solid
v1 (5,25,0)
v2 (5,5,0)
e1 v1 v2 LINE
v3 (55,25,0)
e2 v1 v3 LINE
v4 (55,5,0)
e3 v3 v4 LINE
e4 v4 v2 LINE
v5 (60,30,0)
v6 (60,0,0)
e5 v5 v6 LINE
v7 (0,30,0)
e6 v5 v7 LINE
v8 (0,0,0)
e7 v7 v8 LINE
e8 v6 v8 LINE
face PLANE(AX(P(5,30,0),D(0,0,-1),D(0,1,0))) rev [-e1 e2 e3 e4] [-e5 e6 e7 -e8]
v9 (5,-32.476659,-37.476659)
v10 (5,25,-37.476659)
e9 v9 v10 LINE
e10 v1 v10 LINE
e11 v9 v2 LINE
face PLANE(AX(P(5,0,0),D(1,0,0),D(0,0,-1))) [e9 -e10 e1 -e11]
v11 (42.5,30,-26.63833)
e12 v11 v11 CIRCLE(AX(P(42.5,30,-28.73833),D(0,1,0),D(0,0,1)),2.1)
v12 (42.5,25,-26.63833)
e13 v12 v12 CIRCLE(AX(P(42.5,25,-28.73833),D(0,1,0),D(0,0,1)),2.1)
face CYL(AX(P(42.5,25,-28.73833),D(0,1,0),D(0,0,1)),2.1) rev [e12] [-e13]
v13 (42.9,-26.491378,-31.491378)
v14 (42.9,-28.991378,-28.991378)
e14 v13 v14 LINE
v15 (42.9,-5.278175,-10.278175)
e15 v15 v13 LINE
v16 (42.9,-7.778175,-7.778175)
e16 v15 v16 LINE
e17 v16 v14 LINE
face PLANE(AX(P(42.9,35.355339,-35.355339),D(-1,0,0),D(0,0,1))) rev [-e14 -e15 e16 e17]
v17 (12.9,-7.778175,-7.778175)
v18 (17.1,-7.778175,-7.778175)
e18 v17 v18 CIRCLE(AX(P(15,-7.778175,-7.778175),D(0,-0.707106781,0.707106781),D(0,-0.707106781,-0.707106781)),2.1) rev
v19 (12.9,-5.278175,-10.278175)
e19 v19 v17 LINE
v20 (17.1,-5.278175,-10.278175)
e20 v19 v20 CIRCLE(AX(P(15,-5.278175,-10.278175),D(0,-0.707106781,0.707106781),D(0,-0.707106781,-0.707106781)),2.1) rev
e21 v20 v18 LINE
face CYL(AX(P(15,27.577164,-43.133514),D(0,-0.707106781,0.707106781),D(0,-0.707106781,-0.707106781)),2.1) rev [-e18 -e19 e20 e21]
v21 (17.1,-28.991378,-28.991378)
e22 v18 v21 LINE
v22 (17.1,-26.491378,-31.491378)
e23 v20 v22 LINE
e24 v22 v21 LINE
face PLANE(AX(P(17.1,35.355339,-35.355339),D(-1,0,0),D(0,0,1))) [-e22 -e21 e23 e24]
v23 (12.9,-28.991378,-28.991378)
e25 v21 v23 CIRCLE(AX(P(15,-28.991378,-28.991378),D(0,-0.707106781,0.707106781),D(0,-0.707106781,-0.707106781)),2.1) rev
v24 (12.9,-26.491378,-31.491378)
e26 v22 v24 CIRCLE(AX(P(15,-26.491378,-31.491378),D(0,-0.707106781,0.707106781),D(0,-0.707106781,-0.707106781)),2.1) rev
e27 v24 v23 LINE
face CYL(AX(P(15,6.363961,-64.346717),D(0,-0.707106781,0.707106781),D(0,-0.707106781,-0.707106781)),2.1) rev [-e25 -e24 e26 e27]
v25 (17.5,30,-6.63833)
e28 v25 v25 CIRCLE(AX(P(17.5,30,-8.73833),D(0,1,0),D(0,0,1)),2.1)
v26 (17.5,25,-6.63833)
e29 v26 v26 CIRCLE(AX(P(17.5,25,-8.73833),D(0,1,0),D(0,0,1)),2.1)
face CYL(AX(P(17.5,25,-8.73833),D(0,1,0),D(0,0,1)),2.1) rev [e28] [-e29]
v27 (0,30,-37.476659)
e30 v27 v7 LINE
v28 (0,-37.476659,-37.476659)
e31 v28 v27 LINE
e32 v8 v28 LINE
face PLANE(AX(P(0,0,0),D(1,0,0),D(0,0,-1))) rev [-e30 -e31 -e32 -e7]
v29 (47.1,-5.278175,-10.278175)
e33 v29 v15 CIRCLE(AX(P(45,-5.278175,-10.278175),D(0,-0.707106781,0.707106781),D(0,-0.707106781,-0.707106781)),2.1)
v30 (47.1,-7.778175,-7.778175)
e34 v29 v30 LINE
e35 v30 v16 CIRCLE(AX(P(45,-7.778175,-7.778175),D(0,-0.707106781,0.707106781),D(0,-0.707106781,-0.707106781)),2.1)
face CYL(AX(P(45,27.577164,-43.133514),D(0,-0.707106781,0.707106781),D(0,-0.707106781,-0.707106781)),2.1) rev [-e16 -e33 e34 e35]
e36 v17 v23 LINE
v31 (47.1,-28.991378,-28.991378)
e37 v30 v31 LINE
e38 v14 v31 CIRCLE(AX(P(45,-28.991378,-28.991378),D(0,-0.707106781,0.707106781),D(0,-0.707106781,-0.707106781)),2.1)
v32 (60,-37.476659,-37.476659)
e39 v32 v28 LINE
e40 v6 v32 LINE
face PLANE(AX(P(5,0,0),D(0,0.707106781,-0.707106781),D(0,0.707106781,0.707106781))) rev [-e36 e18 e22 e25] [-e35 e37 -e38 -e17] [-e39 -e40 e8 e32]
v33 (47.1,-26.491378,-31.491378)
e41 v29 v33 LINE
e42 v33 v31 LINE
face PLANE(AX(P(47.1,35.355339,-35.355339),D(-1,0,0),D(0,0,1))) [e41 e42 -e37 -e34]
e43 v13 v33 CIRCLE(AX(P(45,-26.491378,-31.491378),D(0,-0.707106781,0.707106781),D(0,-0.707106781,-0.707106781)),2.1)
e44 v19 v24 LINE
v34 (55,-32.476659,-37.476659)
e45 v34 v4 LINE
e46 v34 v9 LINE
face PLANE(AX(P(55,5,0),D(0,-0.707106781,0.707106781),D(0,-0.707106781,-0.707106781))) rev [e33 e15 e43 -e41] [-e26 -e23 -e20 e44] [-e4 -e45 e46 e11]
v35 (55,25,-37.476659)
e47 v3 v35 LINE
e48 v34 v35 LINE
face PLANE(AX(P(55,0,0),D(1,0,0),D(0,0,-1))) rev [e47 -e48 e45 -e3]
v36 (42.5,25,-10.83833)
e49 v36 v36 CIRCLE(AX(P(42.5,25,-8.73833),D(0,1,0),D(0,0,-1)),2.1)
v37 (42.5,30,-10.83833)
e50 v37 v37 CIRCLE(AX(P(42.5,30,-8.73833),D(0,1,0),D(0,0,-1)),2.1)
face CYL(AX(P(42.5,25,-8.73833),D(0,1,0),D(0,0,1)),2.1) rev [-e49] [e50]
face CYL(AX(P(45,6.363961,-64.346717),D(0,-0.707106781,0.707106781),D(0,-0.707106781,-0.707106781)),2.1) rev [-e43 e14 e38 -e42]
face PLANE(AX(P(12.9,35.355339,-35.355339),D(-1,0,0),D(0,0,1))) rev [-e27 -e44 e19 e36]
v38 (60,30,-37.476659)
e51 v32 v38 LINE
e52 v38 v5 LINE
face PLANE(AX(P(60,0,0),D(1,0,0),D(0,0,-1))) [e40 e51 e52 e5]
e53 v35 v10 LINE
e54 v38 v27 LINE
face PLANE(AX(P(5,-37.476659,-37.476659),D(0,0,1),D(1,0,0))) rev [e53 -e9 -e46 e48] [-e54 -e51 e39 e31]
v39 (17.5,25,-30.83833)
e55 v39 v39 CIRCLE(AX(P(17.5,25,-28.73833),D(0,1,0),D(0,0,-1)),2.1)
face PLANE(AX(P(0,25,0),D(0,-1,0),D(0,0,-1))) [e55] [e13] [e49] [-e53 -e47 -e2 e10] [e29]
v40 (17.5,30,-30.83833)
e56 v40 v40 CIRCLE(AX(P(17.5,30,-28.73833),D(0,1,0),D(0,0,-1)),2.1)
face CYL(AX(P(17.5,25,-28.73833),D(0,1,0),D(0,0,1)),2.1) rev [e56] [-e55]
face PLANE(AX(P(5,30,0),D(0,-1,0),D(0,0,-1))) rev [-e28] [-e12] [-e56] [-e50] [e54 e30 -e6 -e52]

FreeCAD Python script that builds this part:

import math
import FreeCAD as App
import Part
import Sketcher
from FreeCAD import Vector
Q = App.Units.Quantity


def add_polygon(sketch, points):
    """Adds a closed chain of lines whose ends are joined by coincident constraints."""
    first, n = sketch.GeometryCount, len(points)
    for a, b in zip(points, points[1:] + points[:1]):
        sketch.addGeometry(Part.LineSegment(App.Vector(*a, 0), App.Vector(*b, 0)), False)
    for i in range(n):
        sketch.addConstraint(Sketcher.Constraint("Coincident", first + i, 2, first + (i + 1) % n, 1))

doc = App.newDocument("Part")
body = doc.addObject("PartDesign::Body", "Body")

# Sketch on YZ plane
sketch1 = body.newObject("Sketcher::SketchObject", "Sketch")
sketch1.AttachmentSupport = (doc.getObject("YZ_Plane"), [""])
sketch1.MapMode = "FlatFace"
add_polygon(sketch1, [(30, 0), (0, 0), (-37, -37), (30, -37)])  # lines 0-3
sketch1.addConstraint(Sketcher.Constraint("Horizontal", 0))
sketch1.addConstraint(Sketcher.Constraint("Horizontal", 2))
sketch1.addConstraint(Sketcher.Constraint("Vertical", 3))
sketch1.addConstraint(Sketcher.Constraint("Coincident", 0, 2, -1, 1))
sketch1.addConstraint(Sketcher.Constraint("DistanceX", 0, 2, 0, 1, Q("30 mm")))
sketch1.addConstraint(Sketcher.Constraint("Angle", 1, Q("-135 deg")))
sketch1.addConstraint(Sketcher.Constraint("Distance", 1, Q("53 mm")))
pad1 = body.newObject("PartDesign::Pad", "Pad")
pad1.Profile = sketch1
pad1.Length = 5

# Sketch on YZ plane
sketch2 = body.newObject("Sketcher::SketchObject", "Sketch001")
sketch2.AttachmentSupport = (doc.getObject("YZ_Plane"), [""])
sketch2.MapMode = "FlatFace"
sketch2.AttachmentOffset = App.Placement(Vector(0, 0, 5), App.Rotation())
add_polygon(sketch2, [(5, 0), (0, 0), (-37, -37), (-32, -37)])  # lines 0-3
sketch2.addConstraint(Sketcher.Constraint("Horizontal", 0))
sketch2.addConstraint(Sketcher.Constraint("Horizontal", 2))
sketch2.addConstraint(Sketcher.Constraint("Coincident", 0, 2, -1, 1))
sketch2.addConstraint(Sketcher.Constraint("Parallel", 1, 3))
sketch2.addConstraint(Sketcher.Constraint("DistanceX", 0, 2, 0, 1, Q("5 mm")))
sketch2.addConstraint(Sketcher.Constraint("Angle", 1, Q("-135 deg")))
sketch2.addConstraint(Sketcher.Constraint("Distance", 1, Q("53 mm")))
pad2 = body.newObject("PartDesign::Pad", "Pad001")
pad2.Profile = sketch2
pad2.Length = 50

# Sketch on an angled plane
sketch3 = body.newObject("Sketcher::SketchObject", "Sketch002")
sketch3.Placement = App.Placement(Vector(0, 0, 0), App.Rotation(Vector(1, 0, 0), Vector(0, 0.707106781, 0.707106781), Vector(0, -0.707106781, 0.707106781), "ZXY"))
sketch3.addGeometry(Part.ArcOfCircle(Part.Circle(Vector(15, -41, 0), Vector(0, 0, 1), 2.1), math.radians(180), math.radians(360)), False)
sketch3.addGeometry(Part.LineSegment(Vector(17.1, -41, 0), Vector(17.1, -11, 0)), False)
sketch3.addGeometry(Part.ArcOfCircle(Part.Circle(Vector(15, -11, 0), Vector(0, 0, 1), 2.1), math.radians(0), math.radians(180)), False)
sketch3.addGeometry(Part.LineSegment(Vector(12.9, -11, 0), Vector(12.9, -41, 0)), False)
sketch3.addGeometry(Part.LineSegment(Vector(42.9, -11, 0), Vector(42.9, -41, 0)), False)
sketch3.addGeometry(Part.ArcOfCircle(Part.Circle(Vector(45, -41, 0), Vector(0, 0, 1), 2.1), math.radians(180), math.radians(360)), False)
sketch3.addGeometry(Part.LineSegment(Vector(47.1, -41, 0), Vector(47.1, -11, 0)), False)
sketch3.addGeometry(Part.ArcOfCircle(Part.Circle(Vector(45, -11, 0), Vector(0, 0, 1), 2.1), math.radians(0), math.radians(180)), False)
sketch3.addConstraint(Sketcher.Constraint("Tangent", 0, 2, 1, 1))
sketch3.addConstraint(Sketcher.Constraint("Tangent", 1, 2, 2, 1))
sketch3.addConstraint(Sketcher.Constraint("Tangent", 2, 2, 3, 1))
sketch3.addConstraint(Sketcher.Constraint("Tangent", 3, 2, 0, 1))
sketch3.addConstraint(Sketcher.Constraint("Tangent", 4, 2, 5, 1))
sketch3.addConstraint(Sketcher.Constraint("Tangent", 5, 2, 6, 1))
sketch3.addConstraint(Sketcher.Constraint("Tangent", 6, 2, 7, 1))
sketch3.addConstraint(Sketcher.Constraint("Tangent", 7, 2, 4, 1))
sketch3.addConstraint(Sketcher.Constraint("Vertical", 1))
sketch3.addConstraint(Sketcher.Constraint("Vertical", 3))
sketch3.addConstraint(Sketcher.Constraint("Vertical", 4))
sketch3.addConstraint(Sketcher.Constraint("Vertical", 6))
sketch3.addConstraint(Sketcher.Constraint("Equal", 2, 5))
sketch3.addConstraint(Sketcher.Constraint("Horizontal", 0, 3, 5, 3))
sketch3.addConstraint(Sketcher.Constraint("Horizontal", 2, 3, 7, 3))
sketch3.addConstraint(Sketcher.Constraint("Radius", 0, Q("2.1 mm")))
sketch3.addConstraint(Sketcher.Constraint("DistanceY", 1, 1, 1, 2, Q("30 mm")))
sketch3.addConstraint(Sketcher.Constraint("DistanceX", -1, 1, 0, 3, Q("15 mm")))
sketch3.addConstraint(Sketcher.Constraint("DistanceY", 0, 3, -1, 1, Q("41 mm")))
sketch3.addConstraint(Sketcher.Constraint("DistanceX", -1, 1, 5, 3, Q("45 mm")))
pocket1 = body.newObject("PartDesign::Pocket", "Pocket")
pocket1.Profile = sketch3
pocket1.Length = 50

# Sketch on YZ plane
sketch4 = body.newObject("Sketcher::SketchObject", "Sketch003")
sketch4.AttachmentSupport = (doc.getObject("YZ_Plane"), [""])
sketch4.MapMode = "FlatFace"
sketch4.AttachmentOffset = App.Placement(Vector(0, 0, 55), App.Rotation())
add_polygon(sketch4, [(30, 0), (0, 0), (-37, -37), (30, -37)])  # lines 0-3
sketch4.addConstraint(Sketcher.Constraint("Horizontal", 0))
sketch4.addConstraint(Sketcher.Constraint("Horizontal", 2))
sketch4.addConstraint(Sketcher.Constraint("Vertical", 3))
sketch4.addConstraint(Sketcher.Constraint("Coincident", 0, 2, -1, 1))
sketch4.addConstraint(Sketcher.Constraint("DistanceX", 0, 2, 0, 1, Q("30 mm")))
sketch4.addConstraint(Sketcher.Constraint("Angle", 1, Q("-135 deg")))
sketch4.addConstraint(Sketcher.Constraint("Distance", 1, Q("53 mm")))
pad3 = body.newObject("PartDesign::Pad", "Pad002")
pad3.Profile = sketch4
pad3.Length = 5

# Sketch on XZ plane
sketch5 = body.newObject("Sketcher::SketchObject", "Sketch004")
sketch5.AttachmentSupport = (doc.getObject("XZ_Plane"), [""])
sketch5.MapMode = "FlatFace"
sketch5.AttachmentOffset = App.Placement(Vector(0, 0, -30), App.Rotation())
add_polygon(sketch5, [(0, -37), (0, 0), (60, 0), (60, -37)])  # lines 0-3
sketch5.addConstraint(Sketcher.Constraint("Vertical", 0))
sketch5.addConstraint(Sketcher.Constraint("Horizontal", 1))
sketch5.addConstraint(Sketcher.Constraint("Vertical", 2))
sketch5.addConstraint(Sketcher.Constraint("Horizontal", 3))
sketch5.addConstraint(Sketcher.Constraint("Coincident", 0, 2, -1, 1))
sketch5.addConstraint(Sketcher.Constraint("DistanceX", 1, 1, 1, 2, Q("60 mm")))
sketch5.addConstraint(Sketcher.Constraint("DistanceY", 0, 1, 0, 2, Q("37.476659 mm")))
pad4 = body.newObject("PartDesign::Pad", "Pad003")
pad4.Profile = sketch5
pad4.Length = 5

# Sketch on XZ plane
sketch6 = body.newObject("Sketcher::SketchObject", "Sketch005")
sketch6.AttachmentSupport = (doc.getObject("XZ_Plane"), [""])
sketch6.MapMode = "FlatFace"
sketch6.AttachmentOffset = App.Placement(Vector(0, 0, -30), App.Rotation())
sketch6.addGeometry(Part.Circle(Vector(42.5, -28.7, 0), Vector(0, 0, 1), 2.1), False)
sketch6.addGeometry(Part.Circle(Vector(17.5, -28.7, 0), Vector(0, 0, 1), 2.1), False)
sketch6.addGeometry(Part.Circle(Vector(42.5, -8.7, 0), Vector(0, 0, 1), 2.1), False)
sketch6.addGeometry(Part.Circle(Vector(17.5, -8.7, 0), Vector(0, 0, 1), 2.1), False)
sketch6.addConstraint(Sketcher.Constraint("Equal", 0, 1))
sketch6.addConstraint(Sketcher.Constraint("Equal", 1, 2))
sketch6.addConstraint(Sketcher.Constraint("Equal", 2, 3))
sketch6.addConstraint(Sketcher.Constraint("Horizontal", 0, 3, 1, 3))
sketch6.addConstraint(Sketcher.Constraint("Horizontal", 2, 3, 3, 3))
sketch6.addConstraint(Sketcher.Constraint("Vertical", 0, 3, 2, 3))
sketch6.addConstraint(Sketcher.Constraint("Vertical", 1, 3, 3, 3))
sketch6.addConstraint(Sketcher.Constraint("Diameter", 0, Q("4.2 mm")))
sketch6.addConstraint(Sketcher.Constraint("DistanceX", 1, 3, 0, 3, Q("25 mm")))
sketch6.addConstraint(Sketcher.Constraint("DistanceY", 0, 3, 2, 3, Q("20 mm")))
sketch6.addConstraint(Sketcher.Constraint("DistanceX", -1, 1, 0, 3, Q("42.5 mm")))
sketch6.addConstraint(Sketcher.Constraint("DistanceY", 0, 3, -1, 1, Q("28.73833 mm")))
pocket2 = body.newObject("PartDesign::Pocket", "Pocket001")
pocket2.Profile = sketch6
pocket2.Length = 5
pocket2.Reversed = True

doc.recompute()
